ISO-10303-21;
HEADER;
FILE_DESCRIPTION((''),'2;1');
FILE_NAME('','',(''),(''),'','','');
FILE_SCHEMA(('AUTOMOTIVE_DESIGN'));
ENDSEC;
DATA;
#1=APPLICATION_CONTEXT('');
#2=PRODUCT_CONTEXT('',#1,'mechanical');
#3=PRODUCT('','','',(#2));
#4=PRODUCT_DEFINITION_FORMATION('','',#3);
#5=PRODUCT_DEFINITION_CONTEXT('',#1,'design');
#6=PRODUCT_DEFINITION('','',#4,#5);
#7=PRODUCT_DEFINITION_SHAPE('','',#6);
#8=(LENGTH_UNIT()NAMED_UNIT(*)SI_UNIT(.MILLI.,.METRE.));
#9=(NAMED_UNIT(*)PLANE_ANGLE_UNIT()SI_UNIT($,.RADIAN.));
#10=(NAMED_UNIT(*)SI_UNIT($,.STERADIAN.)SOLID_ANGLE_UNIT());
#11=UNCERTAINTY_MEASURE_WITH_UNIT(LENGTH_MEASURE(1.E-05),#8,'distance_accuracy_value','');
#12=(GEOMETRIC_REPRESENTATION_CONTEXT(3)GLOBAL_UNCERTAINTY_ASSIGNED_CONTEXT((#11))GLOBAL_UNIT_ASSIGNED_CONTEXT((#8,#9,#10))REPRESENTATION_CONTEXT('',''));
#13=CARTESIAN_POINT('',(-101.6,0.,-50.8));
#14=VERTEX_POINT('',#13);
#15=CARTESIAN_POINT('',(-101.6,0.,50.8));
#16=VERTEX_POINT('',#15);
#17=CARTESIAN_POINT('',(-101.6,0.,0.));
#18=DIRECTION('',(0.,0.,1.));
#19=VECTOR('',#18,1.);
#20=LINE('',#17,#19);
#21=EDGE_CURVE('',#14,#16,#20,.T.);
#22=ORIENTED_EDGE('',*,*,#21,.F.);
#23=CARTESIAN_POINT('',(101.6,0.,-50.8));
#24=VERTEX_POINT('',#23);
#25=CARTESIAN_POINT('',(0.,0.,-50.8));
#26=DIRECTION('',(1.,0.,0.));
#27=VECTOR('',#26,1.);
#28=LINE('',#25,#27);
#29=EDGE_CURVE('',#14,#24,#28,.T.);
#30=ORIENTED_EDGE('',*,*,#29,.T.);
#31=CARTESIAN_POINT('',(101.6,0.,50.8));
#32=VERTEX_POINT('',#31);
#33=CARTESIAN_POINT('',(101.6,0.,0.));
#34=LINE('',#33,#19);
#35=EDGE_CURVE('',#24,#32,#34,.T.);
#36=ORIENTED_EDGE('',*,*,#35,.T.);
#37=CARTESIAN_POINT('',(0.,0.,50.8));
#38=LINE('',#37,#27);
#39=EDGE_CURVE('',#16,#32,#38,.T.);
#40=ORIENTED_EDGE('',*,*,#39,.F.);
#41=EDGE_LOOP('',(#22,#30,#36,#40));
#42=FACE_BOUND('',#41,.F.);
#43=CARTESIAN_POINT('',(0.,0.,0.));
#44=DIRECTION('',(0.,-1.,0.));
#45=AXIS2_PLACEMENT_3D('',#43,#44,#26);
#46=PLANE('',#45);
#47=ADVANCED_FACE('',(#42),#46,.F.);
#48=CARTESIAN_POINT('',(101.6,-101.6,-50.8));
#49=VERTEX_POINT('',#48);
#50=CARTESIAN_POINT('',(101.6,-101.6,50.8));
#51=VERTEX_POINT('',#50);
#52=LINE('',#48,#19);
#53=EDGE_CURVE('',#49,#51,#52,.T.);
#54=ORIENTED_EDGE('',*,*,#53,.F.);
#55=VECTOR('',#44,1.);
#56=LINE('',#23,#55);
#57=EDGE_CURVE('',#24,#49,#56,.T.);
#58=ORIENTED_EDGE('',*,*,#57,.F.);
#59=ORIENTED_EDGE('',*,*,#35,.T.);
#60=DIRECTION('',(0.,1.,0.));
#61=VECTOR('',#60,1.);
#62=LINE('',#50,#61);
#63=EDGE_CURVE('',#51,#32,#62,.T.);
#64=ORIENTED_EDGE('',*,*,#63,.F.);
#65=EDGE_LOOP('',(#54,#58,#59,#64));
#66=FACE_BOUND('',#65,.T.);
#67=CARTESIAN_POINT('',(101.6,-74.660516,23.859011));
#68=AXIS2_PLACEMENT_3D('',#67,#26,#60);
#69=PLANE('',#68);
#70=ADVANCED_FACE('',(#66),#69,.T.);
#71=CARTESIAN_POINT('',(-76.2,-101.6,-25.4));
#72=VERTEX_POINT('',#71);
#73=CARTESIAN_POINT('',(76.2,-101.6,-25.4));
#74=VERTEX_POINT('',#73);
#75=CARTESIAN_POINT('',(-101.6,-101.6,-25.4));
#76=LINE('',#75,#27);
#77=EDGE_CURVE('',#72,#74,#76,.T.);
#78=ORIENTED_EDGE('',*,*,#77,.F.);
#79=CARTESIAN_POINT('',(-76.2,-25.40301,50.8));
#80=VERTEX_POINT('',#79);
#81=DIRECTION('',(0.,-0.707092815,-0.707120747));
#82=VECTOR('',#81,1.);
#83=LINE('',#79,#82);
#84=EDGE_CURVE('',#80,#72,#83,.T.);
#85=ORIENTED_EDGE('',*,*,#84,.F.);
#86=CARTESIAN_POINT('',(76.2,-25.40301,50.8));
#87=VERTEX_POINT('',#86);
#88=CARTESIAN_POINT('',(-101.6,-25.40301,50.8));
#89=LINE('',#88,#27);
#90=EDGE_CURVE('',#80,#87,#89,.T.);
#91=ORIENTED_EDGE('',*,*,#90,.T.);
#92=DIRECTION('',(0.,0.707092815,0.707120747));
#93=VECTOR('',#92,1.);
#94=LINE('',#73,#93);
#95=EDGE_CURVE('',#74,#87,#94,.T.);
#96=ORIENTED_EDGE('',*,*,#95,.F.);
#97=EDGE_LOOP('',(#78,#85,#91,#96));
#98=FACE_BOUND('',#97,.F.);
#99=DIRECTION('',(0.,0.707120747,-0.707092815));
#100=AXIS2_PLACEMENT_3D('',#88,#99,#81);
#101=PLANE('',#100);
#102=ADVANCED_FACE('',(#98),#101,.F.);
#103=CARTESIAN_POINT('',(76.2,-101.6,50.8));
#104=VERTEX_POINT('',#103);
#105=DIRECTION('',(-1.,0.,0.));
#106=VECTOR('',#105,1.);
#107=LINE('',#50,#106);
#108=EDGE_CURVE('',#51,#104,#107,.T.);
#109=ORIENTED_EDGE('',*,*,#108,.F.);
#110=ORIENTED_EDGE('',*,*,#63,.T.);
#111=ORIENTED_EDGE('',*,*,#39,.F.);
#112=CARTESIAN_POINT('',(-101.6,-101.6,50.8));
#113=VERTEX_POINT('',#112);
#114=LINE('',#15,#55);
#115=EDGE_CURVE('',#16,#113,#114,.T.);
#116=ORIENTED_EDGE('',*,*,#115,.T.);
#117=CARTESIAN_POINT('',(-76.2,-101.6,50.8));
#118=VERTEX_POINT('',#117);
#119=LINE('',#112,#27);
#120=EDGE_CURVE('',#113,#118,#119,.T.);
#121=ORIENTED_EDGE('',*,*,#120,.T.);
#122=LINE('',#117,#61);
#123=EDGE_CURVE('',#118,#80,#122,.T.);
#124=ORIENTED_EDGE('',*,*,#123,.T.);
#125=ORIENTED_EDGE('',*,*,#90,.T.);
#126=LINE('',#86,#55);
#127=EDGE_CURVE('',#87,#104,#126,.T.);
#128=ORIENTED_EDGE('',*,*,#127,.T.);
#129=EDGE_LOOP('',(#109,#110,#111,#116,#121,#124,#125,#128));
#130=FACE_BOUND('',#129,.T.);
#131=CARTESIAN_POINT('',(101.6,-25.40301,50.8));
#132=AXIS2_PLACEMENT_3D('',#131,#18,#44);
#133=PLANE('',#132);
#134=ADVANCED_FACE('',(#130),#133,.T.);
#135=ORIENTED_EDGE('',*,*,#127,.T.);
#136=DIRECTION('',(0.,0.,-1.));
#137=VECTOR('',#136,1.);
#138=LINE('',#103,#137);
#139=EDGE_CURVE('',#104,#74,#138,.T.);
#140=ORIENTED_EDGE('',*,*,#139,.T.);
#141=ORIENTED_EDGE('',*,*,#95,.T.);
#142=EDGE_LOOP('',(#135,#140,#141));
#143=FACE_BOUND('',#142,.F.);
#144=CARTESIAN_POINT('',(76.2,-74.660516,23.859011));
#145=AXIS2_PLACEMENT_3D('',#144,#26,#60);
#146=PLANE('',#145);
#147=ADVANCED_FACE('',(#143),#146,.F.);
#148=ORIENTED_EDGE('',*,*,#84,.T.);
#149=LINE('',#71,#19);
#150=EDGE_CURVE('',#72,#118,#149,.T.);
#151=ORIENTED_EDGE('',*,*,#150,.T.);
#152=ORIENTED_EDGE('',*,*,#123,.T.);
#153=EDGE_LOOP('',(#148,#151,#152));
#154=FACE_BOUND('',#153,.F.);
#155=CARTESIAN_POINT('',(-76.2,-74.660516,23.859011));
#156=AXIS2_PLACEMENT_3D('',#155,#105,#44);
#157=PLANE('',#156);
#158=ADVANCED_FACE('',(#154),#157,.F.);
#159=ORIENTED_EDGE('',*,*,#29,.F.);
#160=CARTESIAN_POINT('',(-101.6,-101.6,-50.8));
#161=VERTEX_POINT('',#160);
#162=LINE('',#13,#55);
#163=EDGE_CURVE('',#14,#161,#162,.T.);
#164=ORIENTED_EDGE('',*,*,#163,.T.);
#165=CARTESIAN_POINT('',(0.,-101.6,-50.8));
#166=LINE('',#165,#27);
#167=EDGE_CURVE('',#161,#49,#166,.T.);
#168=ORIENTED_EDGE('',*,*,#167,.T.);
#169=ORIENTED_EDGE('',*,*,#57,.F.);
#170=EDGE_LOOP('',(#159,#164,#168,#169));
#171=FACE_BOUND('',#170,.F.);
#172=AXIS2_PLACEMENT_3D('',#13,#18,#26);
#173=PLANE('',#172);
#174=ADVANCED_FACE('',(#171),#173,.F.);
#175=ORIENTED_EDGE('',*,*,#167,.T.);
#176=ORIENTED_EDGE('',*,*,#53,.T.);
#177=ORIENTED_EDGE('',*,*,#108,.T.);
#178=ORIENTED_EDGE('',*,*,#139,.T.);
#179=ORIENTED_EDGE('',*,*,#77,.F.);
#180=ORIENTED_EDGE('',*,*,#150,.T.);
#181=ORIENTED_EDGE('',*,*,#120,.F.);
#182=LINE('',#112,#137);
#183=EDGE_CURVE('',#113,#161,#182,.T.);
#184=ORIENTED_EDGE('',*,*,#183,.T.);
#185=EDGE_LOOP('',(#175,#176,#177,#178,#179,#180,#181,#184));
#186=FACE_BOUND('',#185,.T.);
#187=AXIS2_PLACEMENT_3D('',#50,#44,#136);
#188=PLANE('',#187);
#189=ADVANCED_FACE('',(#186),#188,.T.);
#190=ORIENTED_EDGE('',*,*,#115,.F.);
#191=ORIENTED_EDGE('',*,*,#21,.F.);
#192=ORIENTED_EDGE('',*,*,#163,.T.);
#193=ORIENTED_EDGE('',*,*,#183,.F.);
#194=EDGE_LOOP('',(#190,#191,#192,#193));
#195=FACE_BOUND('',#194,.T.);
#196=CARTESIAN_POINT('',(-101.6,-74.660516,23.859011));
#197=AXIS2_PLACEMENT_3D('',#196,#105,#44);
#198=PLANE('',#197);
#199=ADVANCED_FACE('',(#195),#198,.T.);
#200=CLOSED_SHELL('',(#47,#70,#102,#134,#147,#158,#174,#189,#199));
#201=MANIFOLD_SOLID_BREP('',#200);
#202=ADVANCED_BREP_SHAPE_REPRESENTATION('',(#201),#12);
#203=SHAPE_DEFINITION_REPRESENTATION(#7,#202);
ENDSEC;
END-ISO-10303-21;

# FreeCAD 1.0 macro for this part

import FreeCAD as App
import Part
import Sketcher

V = App.Vector
Q = App.Units.Quantity


def add_polygon(sketch, points):
    """Adds a closed chain of lines whose ends are joined by coincident constraints."""
    first, n = sketch.GeometryCount, len(points)
    for a, b in zip(points, points[1:] + points[:1]):
        sketch.addGeometry(Part.LineSegment(App.Vector(*a, 0), App.Vector(*b, 0)), False)
    for i in range(n):
        sketch.addConstraint(Sketcher.Constraint("Coincident", first + i, 2, first + (i + 1) % n, 1))

doc = App.newDocument("Part")
body = doc.addObject("PartDesign::Body", "Body")

# Sketch on XZ plane
sketch1 = body.newObject("Sketcher::SketchObject", "Sketch")
sketch1.AttachmentSupport = (doc.getObject("XZ_Plane"), [""])
sketch1.MapMode = "FlatFace"
add_polygon(sketch1, [(-102, 51), (-102, -51), (102, -51), (102, 51)])  # lines 0-3
sketch1.addConstraint(Sketcher.Constraint("Vertical", 0))
sketch1.addConstraint(Sketcher.Constraint("Horizontal", 1))
sketch1.addConstraint(Sketcher.Constraint("Vertical", 2))
sketch1.addConstraint(Sketcher.Constraint("Horizontal", 3))
sketch1.addConstraint(Sketcher.Constraint("Symmetric", 0, 2, 2, 2, -1, 1))
sketch1.addConstraint(Sketcher.Constraint("DistanceX", 1, 1, 1, 2, Q("8 in")))
sketch1.addConstraint(Sketcher.Constraint("DistanceY", 0, 2, 0, 1, Q("4 in")))
pad1 = body.newObject("PartDesign::Pad", "Pad")
pad1.Profile = sketch1
pad1.Length = Q("4 in")

# Sketch on YZ plane
sketch2 = body.newObject("Sketcher::SketchObject", "Sketch001")
sketch2.AttachmentSupport = (doc.getObject("YZ_Plane"), [""])
sketch2.MapMode = "FlatFace"
sketch2.AttachmentOffset = App.Placement(V(0, 0, -4 * 25.4), App.Rotation())
add_polygon(sketch2, [(-102, 51), (-25, 51), (-102, -25)])  # lines 0-2
sketch2.addConstraint(Sketcher.Constraint("Horizontal", 0))
sketch2.addConstraint(Sketcher.Constraint("Vertical", 2))
sketch2.addConstraint(Sketcher.Constraint("DistanceY", 2, 1, 2, 2, Q("3 in")))
sketch2.addConstraint(Sketcher.Constraint("DistanceY", -1, 1, 0, 2, Q("2 in")))
sketch2.addConstraint(Sketcher.Constraint("DistanceX", 1, 2, -1, 1, Q("4 in")))
sketch2.addConstraint(Sketcher.Constraint("DistanceX", 0, 1, 0, 2, 76.19699))
pocket1 = body.newObject("PartDesign::Pocket", "Pocket")
pocket1.Profile = sketch2
pocket1.Length = Q("8 in")
pocket1.Reversed = True

# Sketch on YZ plane
sketch3 = body.newObject("Sketcher::SketchObject", "Sketch002")
sketch3.AttachmentSupport = (doc.getObject("YZ_Plane"), [""])
sketch3.MapMode = "FlatFace"
sketch3.AttachmentOffset = App.Placement(V(0, 0, -4 * 25.4), App.Rotation())
add_polygon(sketch3, [(-102, 51), (-25, 51), (-102, -25)])  # lines 0-2
sketch3.addConstraint(Sketcher.Constraint("Horizontal", 0))
sketch3.addConstraint(Sketcher.Constraint("Vertical", 2))
sketch3.addConstraint(Sketcher.Constraint("DistanceY", 2, 1, 2, 2, Q("3 in")))
sketch3.addConstraint(Sketcher.Constraint("DistanceY", -1, 1, 0, 2, Q("2 in")))
sketch3.addConstraint(Sketcher.Constraint("DistanceX", 1, 2, -1, 1, Q("4 in")))
sketch3.addConstraint(Sketcher.Constraint("DistanceX", 0, 1, 0, 2, 76.19699))
pad2 = body.newObject("PartDesign::Pad", "Pad001")
pad2.Profile = sketch3
pad2.Length = Q("1 in")

# Sketch on YZ plane
sketch4 = body.newObject("Sketcher::SketchObject", "Sketch003")
sketch4.AttachmentSupport = (doc.getObject("YZ_Plane"), [""])
sketch4.MapMode = "FlatFace"
sketch4.AttachmentOffset = App.Placement(V(0, 0, 4 * 25.4), App.Rotation())
add_polygon(sketch4, [(-102, -25), (-25, 51), (-102, 51)])  # lines 0-2
sketch4.addConstraint(Sketcher.Constraint("Horizontal", 1))
sketch4.addConstraint(Sketcher.Constraint("Vertical", 2))
sketch4.addConstraint(Sketcher.Constraint("DistanceY", 2, 2, 2, 1, Q("3 in")))
sketch4.addConstraint(Sketcher.Constraint("DistanceY", -1, 1, 0, 2, Q("2 in")))
sketch4.addConstraint(Sketcher.Constraint("DistanceX", 1, 2, -1, 1, Q("4 in")))
sketch4.addConstraint(Sketcher.Constraint("DistanceX", 1, 2, 1, 1, 76.19699))
pad3 = body.newObject("PartDesign::Pad", "Pad002")
pad3.Profile = sketch4
pad3.Length = Q("1 in")
pad3.Reversed = True

doc.recompute()
